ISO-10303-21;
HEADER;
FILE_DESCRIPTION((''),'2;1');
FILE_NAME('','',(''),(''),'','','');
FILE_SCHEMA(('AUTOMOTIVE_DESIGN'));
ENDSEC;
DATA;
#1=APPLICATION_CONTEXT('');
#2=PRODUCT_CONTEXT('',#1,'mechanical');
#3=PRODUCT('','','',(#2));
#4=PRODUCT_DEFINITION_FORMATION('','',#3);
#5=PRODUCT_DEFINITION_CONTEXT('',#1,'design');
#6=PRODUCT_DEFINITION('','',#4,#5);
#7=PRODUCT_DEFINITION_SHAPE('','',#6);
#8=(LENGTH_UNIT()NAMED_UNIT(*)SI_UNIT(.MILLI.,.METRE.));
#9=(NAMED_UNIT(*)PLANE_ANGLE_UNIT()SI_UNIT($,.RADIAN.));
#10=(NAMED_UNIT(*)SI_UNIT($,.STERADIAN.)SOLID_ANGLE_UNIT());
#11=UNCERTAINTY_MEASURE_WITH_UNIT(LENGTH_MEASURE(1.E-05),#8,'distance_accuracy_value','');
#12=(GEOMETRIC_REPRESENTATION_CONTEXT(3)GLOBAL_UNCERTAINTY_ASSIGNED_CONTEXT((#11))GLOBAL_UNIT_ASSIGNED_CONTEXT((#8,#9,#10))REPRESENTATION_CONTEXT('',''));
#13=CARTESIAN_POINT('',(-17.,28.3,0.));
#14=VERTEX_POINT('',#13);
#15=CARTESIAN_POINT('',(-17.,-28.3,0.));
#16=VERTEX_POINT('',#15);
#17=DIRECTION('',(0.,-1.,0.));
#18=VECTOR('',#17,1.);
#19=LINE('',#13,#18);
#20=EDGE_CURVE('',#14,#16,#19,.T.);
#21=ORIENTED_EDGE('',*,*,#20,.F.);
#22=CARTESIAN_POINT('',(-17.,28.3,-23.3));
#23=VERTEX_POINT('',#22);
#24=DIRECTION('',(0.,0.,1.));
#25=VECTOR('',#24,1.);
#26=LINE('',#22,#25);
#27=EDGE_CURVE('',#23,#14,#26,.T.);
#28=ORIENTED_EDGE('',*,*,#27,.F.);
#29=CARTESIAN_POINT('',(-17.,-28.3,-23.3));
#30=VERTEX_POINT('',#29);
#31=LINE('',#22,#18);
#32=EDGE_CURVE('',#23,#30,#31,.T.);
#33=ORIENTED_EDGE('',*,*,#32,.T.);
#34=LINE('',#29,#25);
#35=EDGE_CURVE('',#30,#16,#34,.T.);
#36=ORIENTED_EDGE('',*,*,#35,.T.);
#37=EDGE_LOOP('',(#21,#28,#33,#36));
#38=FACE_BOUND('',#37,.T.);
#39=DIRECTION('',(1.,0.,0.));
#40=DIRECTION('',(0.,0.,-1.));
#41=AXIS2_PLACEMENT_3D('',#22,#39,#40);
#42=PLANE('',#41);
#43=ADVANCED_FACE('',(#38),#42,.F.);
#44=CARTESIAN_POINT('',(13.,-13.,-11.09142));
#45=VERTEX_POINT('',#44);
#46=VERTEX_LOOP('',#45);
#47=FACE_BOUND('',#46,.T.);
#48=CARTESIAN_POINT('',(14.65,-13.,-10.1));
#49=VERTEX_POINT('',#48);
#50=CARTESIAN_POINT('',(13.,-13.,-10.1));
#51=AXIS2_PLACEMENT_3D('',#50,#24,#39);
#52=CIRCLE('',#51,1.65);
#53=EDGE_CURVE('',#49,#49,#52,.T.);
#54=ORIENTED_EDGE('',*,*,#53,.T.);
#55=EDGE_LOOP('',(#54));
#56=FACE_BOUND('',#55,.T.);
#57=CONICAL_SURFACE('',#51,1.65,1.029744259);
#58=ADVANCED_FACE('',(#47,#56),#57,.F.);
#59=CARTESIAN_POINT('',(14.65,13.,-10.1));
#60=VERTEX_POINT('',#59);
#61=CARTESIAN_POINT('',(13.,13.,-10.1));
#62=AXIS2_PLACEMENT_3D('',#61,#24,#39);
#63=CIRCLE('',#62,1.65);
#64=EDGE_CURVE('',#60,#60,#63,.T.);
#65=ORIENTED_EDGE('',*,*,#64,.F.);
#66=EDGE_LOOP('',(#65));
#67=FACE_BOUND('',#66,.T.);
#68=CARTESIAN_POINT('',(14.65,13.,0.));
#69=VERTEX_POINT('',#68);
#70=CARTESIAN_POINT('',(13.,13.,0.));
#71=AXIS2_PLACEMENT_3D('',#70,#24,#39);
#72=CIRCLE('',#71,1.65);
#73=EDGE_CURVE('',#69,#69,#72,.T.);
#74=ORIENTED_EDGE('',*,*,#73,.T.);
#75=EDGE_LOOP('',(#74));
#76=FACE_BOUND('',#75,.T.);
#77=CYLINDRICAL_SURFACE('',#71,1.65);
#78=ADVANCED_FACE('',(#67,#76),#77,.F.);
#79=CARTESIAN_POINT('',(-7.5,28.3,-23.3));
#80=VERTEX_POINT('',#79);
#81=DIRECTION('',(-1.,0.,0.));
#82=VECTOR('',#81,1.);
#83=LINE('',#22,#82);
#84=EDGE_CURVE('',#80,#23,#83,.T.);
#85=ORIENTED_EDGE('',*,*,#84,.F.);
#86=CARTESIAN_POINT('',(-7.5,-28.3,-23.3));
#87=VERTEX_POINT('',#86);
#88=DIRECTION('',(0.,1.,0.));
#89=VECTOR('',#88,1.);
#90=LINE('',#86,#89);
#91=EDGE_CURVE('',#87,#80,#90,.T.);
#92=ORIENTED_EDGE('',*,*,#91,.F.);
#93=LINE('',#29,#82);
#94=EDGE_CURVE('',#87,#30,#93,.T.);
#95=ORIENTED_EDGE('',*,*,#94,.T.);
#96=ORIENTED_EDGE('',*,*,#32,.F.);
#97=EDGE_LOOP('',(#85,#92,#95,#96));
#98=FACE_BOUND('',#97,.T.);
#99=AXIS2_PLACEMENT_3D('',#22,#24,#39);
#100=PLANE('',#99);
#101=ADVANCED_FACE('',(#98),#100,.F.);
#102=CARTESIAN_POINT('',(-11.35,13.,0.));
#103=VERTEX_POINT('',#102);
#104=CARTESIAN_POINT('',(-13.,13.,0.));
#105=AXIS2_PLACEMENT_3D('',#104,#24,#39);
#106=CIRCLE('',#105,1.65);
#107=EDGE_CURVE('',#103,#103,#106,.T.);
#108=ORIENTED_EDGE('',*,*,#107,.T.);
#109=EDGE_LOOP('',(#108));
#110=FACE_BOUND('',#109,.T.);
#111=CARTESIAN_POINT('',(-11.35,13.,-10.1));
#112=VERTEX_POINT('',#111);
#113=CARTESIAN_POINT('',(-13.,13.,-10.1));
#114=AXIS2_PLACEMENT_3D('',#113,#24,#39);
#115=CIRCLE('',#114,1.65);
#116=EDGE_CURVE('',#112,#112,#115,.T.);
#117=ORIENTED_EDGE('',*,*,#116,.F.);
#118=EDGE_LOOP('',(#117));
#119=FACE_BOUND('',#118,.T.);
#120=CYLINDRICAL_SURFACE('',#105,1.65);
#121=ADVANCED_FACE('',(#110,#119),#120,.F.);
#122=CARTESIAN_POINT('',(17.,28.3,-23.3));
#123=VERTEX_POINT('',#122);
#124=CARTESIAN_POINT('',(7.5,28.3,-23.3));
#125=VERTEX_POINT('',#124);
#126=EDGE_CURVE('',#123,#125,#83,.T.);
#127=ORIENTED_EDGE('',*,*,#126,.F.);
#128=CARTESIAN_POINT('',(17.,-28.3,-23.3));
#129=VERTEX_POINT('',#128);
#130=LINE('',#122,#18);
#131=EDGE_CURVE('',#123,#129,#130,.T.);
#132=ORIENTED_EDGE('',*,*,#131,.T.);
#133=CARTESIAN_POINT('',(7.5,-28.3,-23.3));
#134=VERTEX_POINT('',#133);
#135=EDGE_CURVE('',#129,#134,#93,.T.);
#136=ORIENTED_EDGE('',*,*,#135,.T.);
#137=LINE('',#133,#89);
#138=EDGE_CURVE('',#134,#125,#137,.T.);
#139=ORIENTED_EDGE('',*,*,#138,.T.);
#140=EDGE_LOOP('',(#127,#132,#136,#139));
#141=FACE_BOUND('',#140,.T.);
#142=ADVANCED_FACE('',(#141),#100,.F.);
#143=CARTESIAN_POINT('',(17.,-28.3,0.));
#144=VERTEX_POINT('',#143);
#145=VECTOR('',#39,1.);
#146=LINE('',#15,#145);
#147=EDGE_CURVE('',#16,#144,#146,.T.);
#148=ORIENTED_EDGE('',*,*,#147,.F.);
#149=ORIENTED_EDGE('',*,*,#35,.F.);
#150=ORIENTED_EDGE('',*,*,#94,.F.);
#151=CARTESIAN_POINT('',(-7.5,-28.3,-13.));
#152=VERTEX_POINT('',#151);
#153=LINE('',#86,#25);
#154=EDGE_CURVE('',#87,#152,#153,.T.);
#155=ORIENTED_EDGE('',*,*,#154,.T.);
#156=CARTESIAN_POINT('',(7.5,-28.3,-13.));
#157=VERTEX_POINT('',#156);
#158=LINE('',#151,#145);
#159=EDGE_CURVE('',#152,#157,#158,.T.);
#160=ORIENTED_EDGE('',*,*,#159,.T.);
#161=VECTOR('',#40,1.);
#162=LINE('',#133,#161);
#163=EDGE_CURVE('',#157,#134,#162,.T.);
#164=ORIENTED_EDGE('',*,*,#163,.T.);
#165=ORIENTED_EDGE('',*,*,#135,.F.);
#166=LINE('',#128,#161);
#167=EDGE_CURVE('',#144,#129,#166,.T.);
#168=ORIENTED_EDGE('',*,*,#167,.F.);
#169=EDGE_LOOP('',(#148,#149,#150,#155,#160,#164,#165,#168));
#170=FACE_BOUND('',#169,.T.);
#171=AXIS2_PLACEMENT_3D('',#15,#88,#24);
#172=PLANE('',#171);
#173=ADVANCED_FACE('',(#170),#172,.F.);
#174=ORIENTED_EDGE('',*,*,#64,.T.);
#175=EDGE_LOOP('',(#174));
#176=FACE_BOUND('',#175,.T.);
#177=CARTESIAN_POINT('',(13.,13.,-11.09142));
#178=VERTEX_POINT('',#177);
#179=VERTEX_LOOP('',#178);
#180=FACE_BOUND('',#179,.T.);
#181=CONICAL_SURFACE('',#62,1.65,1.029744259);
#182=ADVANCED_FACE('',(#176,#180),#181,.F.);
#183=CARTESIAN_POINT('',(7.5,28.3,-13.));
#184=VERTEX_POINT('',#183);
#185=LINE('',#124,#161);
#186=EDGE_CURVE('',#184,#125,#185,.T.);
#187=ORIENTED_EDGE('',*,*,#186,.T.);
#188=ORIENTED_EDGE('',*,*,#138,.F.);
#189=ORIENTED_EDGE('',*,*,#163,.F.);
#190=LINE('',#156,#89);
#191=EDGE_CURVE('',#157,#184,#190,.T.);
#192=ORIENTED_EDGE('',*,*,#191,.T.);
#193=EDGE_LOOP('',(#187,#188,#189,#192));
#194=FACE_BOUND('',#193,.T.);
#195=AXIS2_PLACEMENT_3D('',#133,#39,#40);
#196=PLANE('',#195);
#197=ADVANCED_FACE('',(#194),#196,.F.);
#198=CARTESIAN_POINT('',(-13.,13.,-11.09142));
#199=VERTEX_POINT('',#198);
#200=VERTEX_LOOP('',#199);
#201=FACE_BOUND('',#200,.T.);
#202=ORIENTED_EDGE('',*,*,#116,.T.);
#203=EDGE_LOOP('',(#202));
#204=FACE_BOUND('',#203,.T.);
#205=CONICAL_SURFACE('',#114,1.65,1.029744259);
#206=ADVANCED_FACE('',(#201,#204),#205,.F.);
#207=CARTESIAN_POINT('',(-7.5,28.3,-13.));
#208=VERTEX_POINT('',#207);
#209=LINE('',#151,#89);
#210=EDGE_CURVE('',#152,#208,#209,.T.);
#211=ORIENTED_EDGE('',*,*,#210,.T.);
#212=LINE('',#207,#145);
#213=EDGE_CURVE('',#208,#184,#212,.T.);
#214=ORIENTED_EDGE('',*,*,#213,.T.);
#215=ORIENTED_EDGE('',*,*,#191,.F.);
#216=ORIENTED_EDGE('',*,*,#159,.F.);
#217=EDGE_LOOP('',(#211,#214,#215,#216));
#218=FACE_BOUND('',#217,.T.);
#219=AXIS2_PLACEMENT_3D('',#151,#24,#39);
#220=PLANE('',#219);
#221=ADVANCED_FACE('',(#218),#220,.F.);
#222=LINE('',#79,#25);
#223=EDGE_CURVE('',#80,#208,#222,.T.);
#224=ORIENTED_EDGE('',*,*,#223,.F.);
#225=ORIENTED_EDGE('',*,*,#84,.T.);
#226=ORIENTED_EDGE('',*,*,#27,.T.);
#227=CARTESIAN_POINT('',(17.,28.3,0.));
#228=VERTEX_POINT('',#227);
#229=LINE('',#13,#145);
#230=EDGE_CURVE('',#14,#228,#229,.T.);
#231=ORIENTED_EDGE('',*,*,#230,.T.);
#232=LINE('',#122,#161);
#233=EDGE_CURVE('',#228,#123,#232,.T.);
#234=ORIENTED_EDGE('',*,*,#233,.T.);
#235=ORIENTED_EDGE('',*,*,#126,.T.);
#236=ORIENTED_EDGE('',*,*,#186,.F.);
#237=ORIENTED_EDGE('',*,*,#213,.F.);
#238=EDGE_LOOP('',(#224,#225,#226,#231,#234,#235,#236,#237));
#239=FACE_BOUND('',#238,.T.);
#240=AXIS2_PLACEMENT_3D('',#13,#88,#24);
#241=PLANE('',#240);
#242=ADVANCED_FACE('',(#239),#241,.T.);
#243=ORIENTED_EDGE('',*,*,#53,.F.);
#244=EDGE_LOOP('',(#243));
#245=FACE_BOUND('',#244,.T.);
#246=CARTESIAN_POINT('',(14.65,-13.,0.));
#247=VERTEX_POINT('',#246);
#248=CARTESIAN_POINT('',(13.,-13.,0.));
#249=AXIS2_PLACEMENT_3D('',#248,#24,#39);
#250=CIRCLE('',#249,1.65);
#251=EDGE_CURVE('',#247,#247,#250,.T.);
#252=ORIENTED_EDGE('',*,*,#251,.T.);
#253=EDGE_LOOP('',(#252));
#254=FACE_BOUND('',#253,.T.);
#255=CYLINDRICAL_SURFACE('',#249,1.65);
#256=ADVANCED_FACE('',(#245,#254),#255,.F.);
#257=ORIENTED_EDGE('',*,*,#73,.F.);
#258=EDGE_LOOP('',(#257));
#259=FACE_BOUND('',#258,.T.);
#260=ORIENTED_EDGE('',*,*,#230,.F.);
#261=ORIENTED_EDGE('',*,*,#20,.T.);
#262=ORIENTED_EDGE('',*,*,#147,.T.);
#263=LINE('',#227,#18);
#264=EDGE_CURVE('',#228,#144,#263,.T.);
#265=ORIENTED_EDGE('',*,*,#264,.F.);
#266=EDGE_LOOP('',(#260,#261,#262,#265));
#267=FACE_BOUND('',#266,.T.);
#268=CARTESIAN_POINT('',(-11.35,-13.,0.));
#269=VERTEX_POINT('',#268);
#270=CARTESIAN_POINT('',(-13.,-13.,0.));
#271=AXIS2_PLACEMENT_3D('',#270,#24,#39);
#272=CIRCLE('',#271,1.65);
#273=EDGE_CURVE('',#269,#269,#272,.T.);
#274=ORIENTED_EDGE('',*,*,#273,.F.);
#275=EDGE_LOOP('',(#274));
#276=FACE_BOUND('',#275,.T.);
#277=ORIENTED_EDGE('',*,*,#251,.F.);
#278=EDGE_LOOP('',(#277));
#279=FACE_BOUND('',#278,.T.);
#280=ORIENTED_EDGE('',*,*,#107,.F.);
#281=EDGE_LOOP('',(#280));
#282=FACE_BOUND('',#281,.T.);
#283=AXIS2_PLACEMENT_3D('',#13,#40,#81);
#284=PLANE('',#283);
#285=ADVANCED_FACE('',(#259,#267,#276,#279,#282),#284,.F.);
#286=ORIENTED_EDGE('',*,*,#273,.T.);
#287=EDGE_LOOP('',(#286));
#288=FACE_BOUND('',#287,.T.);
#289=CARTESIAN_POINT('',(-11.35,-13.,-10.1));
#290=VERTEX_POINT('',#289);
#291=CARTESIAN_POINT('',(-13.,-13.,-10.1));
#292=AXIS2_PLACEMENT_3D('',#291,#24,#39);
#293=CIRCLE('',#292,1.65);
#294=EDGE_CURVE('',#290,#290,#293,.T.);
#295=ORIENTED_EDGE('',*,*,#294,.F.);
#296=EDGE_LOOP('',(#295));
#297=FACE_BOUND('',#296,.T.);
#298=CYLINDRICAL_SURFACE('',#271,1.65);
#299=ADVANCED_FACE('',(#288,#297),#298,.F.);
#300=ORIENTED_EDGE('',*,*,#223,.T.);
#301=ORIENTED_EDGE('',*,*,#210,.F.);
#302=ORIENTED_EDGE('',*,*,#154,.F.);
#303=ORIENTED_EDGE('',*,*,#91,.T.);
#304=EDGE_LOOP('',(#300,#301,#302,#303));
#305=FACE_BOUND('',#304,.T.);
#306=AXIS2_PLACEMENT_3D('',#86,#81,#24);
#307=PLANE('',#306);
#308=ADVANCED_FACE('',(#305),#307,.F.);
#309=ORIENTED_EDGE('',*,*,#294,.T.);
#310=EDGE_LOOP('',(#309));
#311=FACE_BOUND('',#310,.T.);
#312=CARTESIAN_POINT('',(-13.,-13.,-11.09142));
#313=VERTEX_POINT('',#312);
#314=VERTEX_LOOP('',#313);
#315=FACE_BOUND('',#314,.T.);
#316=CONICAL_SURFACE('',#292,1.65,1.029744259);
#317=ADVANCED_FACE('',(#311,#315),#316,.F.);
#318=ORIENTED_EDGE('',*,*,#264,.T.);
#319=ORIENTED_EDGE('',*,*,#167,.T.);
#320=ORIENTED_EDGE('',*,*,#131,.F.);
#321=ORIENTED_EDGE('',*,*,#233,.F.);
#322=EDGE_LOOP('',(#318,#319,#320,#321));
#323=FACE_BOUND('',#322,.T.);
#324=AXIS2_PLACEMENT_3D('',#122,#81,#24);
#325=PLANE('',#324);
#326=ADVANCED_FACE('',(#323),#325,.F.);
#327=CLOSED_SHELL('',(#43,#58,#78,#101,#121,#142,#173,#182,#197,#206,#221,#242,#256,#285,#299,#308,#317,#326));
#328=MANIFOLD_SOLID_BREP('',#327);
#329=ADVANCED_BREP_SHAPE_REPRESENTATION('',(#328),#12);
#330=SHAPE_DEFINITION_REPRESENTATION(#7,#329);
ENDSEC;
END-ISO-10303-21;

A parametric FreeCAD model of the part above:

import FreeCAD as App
import Part
import Sketcher

V = App.Vector
Q = App.Units.Quantity

doc = App.newDocument("Part")
params = doc.addObject("Spreadsheet::Sheet", "Params")
for row, (alias, value) in enumerate([
    ("sketch1_width", "34 mm"),
    ("sketch1_height", "23.3 mm"),
    ("pad1_length", "56.6 mm"),
    ("sketch2_width", "15 mm"),
    ("sketch2_height", "10.3 mm"),
    ("sketch3_diameter", "3.3 mm"),
    ("hole_diameter", "3.3 mm"),
    ("hole_depth", "10.1 mm"),
], start=1):
    params.set(f"A{row}", alias)
    params.set(f"B{row}", "=" + value)
    params.setAlias(f"B{row}", alias)

body = doc.addObject("PartDesign::Body", "Body")

sketch1 = body.newObject("Sketcher::SketchObject", "Sketch")
sketch1.AttachmentSupport = (doc.getObject("XZ_Plane"), [""])
sketch1.MapMode = "FlatFace"
sketch1.addGeometry([
    Part.LineSegment(V(-17, -23, 0), V(-17, 0, 0)),
    Part.LineSegment(V(-17, 0, 0), V(17, 0, 0)),
    Part.LineSegment(V(17, 0, 0), V(17, -23, 0)),
    Part.LineSegment(V(17, -23, 0), V(-17, -23, 0)),
], False)
sketch1.addConstraint([
    Sketcher.Constraint("Coincident", 0, 2, 1, 1),
    Sketcher.Constraint("Coincident", 1, 2, 2, 1),
    Sketcher.Constraint("Coincident", 2, 2, 3, 1),
    Sketcher.Constraint("Coincident", 3, 2, 0, 1),
    Sketcher.Constraint("Vertical", 0),
    Sketcher.Constraint("Horizontal", 1),
    Sketcher.Constraint("Vertical", 2),
    Sketcher.Constraint("Horizontal", 3),
    Sketcher.Constraint("Symmetric", 0, 2, 1, 2, -1, 1),
    Sketcher.Constraint("DistanceX", 1, 1, 1, 2, Q("34 mm")),
    Sketcher.Constraint("DistanceY", 0, 1, 0, 2, Q("23.3 mm")),
])
sketch1.setExpression("Constraints[9]", "Params.sketch1_width")
sketch1.setExpression("Constraints[10]", "Params.sketch1_height")
pad1 = body.newObject("PartDesign::Pad", "Pad")
pad1.Profile = sketch1
pad1.setExpression("Length", "Params.pad1_length")
pad1.Midplane = True

sketch2 = body.newObject("Sketcher::SketchObject", "Sketch001")
sketch2.AttachmentSupport = (doc.getObject("XZ_Plane"), [""])
sketch2.MapMode = "FlatFace"
sketch2.AttachmentOffset = App.Placement(V(0, 0, -28.3), App.Rotation())
sketch2.addGeometry([
    Part.LineSegment(V(-8, -23, 0), V(-8, -13, 0)),
    Part.LineSegment(V(-8, -13, 0), V(8, -13, 0)),
    Part.LineSegment(V(8, -13, 0), V(8, -23, 0)),
    Part.LineSegment(V(8, -23, 0), V(-8, -23, 0)),
], False)
sketch2.addConstraint([
    Sketcher.Constraint("Coincident", 0, 2, 1, 1),
    Sketcher.Constraint("Coincident", 1, 2, 2, 1),
    Sketcher.Constraint("Coincident", 2, 2, 3, 1),
    Sketcher.Constraint("Coincident", 3, 2, 0, 1),
    Sketcher.Constraint("Vertical", 0),
    Sketcher.Constraint("Horizontal", 1),
    Sketcher.Constraint("Vertical", 2),
    Sketcher.Constraint("Horizontal", 3),
    Sketcher.Constraint("DistanceX", 1, 1, 1, 2, Q("15 mm")),
    Sketcher.Constraint("DistanceY", 0, 1, 0, 2, Q("10.3 mm")),
    Sketcher.Constraint("DistanceY", 0, 2, -1, 1, Q("13 mm")),
    Sketcher.Constraint("DistanceX", 0, 2, -1, 1, Q("7.5 mm")),
])
sketch2.setExpression("Constraints[8]", "Params.sketch2_width")
sketch2.setExpression("Constraints[9]", "Params.sketch2_height")
pocket1 = body.newObject("PartDesign::Pocket", "Pocket")
pocket1.Profile = sketch2
pocket1.Type = "ThroughAll"
pocket1.Reversed = True

sketch3 = body.newObject("Sketcher::SketchObject", "Sketch002")
sketch3.AttachmentSupport = (doc.getObject("XY_Plane"), [""])
sketch3.MapMode = "FlatFace"
sketch3.addGeometry([
    Part.Circle(V(-13, 13, 0), V(0, 0, 1), 1.6),
    Part.Circle(V(-13, -13, 0), V(0, 0, 1), 1.6),
    Part.Circle(V(13, -13, 0), V(0, 0, 1), 1.6),
    Part.Circle(V(13, 13, 0), V(0, 0, 1), 1.6),
], False)
sketch3.addConstraint([
    Sketcher.Constraint("Equal", 0, 1),
    Sketcher.Constraint("Equal", 1, 2),
    Sketcher.Constraint("Equal", 2, 3),
    Sketcher.Constraint("Symmetric", 0, 3, 2, 3, -1, 1),
    Sketcher.Constraint("Symmetric", 1, 3, 3, 3, -1, 1),
    Sketcher.Constraint("Symmetric", 1, 3, 2, 3, -2),
    Sketcher.Constraint("Diameter", 0, Q("3.3 mm")),
    Sketcher.Constraint("DistanceX", 0, 3, -1, 1, Q("13 mm")),
    Sketcher.Constraint("DistanceY", -1, 1, 0, 3, Q("13 mm")),
])
sketch3.setExpression("Constraints[6]", "Params.sketch3_diameter")
doc.recompute()
hole = body.newObject("PartDesign::Hole", "Hole")
hole.Profile = sketch3
hole.ThreadType = "None"
hole.setExpression("Diameter", "Params.hole_diameter")
hole.DepthType = "Dimension"
hole.setExpression("Depth", "Params.hole_depth")
hole.DrillPoint = "Angled"
hole.DrillPointAngle = 118

doc.recompute()
